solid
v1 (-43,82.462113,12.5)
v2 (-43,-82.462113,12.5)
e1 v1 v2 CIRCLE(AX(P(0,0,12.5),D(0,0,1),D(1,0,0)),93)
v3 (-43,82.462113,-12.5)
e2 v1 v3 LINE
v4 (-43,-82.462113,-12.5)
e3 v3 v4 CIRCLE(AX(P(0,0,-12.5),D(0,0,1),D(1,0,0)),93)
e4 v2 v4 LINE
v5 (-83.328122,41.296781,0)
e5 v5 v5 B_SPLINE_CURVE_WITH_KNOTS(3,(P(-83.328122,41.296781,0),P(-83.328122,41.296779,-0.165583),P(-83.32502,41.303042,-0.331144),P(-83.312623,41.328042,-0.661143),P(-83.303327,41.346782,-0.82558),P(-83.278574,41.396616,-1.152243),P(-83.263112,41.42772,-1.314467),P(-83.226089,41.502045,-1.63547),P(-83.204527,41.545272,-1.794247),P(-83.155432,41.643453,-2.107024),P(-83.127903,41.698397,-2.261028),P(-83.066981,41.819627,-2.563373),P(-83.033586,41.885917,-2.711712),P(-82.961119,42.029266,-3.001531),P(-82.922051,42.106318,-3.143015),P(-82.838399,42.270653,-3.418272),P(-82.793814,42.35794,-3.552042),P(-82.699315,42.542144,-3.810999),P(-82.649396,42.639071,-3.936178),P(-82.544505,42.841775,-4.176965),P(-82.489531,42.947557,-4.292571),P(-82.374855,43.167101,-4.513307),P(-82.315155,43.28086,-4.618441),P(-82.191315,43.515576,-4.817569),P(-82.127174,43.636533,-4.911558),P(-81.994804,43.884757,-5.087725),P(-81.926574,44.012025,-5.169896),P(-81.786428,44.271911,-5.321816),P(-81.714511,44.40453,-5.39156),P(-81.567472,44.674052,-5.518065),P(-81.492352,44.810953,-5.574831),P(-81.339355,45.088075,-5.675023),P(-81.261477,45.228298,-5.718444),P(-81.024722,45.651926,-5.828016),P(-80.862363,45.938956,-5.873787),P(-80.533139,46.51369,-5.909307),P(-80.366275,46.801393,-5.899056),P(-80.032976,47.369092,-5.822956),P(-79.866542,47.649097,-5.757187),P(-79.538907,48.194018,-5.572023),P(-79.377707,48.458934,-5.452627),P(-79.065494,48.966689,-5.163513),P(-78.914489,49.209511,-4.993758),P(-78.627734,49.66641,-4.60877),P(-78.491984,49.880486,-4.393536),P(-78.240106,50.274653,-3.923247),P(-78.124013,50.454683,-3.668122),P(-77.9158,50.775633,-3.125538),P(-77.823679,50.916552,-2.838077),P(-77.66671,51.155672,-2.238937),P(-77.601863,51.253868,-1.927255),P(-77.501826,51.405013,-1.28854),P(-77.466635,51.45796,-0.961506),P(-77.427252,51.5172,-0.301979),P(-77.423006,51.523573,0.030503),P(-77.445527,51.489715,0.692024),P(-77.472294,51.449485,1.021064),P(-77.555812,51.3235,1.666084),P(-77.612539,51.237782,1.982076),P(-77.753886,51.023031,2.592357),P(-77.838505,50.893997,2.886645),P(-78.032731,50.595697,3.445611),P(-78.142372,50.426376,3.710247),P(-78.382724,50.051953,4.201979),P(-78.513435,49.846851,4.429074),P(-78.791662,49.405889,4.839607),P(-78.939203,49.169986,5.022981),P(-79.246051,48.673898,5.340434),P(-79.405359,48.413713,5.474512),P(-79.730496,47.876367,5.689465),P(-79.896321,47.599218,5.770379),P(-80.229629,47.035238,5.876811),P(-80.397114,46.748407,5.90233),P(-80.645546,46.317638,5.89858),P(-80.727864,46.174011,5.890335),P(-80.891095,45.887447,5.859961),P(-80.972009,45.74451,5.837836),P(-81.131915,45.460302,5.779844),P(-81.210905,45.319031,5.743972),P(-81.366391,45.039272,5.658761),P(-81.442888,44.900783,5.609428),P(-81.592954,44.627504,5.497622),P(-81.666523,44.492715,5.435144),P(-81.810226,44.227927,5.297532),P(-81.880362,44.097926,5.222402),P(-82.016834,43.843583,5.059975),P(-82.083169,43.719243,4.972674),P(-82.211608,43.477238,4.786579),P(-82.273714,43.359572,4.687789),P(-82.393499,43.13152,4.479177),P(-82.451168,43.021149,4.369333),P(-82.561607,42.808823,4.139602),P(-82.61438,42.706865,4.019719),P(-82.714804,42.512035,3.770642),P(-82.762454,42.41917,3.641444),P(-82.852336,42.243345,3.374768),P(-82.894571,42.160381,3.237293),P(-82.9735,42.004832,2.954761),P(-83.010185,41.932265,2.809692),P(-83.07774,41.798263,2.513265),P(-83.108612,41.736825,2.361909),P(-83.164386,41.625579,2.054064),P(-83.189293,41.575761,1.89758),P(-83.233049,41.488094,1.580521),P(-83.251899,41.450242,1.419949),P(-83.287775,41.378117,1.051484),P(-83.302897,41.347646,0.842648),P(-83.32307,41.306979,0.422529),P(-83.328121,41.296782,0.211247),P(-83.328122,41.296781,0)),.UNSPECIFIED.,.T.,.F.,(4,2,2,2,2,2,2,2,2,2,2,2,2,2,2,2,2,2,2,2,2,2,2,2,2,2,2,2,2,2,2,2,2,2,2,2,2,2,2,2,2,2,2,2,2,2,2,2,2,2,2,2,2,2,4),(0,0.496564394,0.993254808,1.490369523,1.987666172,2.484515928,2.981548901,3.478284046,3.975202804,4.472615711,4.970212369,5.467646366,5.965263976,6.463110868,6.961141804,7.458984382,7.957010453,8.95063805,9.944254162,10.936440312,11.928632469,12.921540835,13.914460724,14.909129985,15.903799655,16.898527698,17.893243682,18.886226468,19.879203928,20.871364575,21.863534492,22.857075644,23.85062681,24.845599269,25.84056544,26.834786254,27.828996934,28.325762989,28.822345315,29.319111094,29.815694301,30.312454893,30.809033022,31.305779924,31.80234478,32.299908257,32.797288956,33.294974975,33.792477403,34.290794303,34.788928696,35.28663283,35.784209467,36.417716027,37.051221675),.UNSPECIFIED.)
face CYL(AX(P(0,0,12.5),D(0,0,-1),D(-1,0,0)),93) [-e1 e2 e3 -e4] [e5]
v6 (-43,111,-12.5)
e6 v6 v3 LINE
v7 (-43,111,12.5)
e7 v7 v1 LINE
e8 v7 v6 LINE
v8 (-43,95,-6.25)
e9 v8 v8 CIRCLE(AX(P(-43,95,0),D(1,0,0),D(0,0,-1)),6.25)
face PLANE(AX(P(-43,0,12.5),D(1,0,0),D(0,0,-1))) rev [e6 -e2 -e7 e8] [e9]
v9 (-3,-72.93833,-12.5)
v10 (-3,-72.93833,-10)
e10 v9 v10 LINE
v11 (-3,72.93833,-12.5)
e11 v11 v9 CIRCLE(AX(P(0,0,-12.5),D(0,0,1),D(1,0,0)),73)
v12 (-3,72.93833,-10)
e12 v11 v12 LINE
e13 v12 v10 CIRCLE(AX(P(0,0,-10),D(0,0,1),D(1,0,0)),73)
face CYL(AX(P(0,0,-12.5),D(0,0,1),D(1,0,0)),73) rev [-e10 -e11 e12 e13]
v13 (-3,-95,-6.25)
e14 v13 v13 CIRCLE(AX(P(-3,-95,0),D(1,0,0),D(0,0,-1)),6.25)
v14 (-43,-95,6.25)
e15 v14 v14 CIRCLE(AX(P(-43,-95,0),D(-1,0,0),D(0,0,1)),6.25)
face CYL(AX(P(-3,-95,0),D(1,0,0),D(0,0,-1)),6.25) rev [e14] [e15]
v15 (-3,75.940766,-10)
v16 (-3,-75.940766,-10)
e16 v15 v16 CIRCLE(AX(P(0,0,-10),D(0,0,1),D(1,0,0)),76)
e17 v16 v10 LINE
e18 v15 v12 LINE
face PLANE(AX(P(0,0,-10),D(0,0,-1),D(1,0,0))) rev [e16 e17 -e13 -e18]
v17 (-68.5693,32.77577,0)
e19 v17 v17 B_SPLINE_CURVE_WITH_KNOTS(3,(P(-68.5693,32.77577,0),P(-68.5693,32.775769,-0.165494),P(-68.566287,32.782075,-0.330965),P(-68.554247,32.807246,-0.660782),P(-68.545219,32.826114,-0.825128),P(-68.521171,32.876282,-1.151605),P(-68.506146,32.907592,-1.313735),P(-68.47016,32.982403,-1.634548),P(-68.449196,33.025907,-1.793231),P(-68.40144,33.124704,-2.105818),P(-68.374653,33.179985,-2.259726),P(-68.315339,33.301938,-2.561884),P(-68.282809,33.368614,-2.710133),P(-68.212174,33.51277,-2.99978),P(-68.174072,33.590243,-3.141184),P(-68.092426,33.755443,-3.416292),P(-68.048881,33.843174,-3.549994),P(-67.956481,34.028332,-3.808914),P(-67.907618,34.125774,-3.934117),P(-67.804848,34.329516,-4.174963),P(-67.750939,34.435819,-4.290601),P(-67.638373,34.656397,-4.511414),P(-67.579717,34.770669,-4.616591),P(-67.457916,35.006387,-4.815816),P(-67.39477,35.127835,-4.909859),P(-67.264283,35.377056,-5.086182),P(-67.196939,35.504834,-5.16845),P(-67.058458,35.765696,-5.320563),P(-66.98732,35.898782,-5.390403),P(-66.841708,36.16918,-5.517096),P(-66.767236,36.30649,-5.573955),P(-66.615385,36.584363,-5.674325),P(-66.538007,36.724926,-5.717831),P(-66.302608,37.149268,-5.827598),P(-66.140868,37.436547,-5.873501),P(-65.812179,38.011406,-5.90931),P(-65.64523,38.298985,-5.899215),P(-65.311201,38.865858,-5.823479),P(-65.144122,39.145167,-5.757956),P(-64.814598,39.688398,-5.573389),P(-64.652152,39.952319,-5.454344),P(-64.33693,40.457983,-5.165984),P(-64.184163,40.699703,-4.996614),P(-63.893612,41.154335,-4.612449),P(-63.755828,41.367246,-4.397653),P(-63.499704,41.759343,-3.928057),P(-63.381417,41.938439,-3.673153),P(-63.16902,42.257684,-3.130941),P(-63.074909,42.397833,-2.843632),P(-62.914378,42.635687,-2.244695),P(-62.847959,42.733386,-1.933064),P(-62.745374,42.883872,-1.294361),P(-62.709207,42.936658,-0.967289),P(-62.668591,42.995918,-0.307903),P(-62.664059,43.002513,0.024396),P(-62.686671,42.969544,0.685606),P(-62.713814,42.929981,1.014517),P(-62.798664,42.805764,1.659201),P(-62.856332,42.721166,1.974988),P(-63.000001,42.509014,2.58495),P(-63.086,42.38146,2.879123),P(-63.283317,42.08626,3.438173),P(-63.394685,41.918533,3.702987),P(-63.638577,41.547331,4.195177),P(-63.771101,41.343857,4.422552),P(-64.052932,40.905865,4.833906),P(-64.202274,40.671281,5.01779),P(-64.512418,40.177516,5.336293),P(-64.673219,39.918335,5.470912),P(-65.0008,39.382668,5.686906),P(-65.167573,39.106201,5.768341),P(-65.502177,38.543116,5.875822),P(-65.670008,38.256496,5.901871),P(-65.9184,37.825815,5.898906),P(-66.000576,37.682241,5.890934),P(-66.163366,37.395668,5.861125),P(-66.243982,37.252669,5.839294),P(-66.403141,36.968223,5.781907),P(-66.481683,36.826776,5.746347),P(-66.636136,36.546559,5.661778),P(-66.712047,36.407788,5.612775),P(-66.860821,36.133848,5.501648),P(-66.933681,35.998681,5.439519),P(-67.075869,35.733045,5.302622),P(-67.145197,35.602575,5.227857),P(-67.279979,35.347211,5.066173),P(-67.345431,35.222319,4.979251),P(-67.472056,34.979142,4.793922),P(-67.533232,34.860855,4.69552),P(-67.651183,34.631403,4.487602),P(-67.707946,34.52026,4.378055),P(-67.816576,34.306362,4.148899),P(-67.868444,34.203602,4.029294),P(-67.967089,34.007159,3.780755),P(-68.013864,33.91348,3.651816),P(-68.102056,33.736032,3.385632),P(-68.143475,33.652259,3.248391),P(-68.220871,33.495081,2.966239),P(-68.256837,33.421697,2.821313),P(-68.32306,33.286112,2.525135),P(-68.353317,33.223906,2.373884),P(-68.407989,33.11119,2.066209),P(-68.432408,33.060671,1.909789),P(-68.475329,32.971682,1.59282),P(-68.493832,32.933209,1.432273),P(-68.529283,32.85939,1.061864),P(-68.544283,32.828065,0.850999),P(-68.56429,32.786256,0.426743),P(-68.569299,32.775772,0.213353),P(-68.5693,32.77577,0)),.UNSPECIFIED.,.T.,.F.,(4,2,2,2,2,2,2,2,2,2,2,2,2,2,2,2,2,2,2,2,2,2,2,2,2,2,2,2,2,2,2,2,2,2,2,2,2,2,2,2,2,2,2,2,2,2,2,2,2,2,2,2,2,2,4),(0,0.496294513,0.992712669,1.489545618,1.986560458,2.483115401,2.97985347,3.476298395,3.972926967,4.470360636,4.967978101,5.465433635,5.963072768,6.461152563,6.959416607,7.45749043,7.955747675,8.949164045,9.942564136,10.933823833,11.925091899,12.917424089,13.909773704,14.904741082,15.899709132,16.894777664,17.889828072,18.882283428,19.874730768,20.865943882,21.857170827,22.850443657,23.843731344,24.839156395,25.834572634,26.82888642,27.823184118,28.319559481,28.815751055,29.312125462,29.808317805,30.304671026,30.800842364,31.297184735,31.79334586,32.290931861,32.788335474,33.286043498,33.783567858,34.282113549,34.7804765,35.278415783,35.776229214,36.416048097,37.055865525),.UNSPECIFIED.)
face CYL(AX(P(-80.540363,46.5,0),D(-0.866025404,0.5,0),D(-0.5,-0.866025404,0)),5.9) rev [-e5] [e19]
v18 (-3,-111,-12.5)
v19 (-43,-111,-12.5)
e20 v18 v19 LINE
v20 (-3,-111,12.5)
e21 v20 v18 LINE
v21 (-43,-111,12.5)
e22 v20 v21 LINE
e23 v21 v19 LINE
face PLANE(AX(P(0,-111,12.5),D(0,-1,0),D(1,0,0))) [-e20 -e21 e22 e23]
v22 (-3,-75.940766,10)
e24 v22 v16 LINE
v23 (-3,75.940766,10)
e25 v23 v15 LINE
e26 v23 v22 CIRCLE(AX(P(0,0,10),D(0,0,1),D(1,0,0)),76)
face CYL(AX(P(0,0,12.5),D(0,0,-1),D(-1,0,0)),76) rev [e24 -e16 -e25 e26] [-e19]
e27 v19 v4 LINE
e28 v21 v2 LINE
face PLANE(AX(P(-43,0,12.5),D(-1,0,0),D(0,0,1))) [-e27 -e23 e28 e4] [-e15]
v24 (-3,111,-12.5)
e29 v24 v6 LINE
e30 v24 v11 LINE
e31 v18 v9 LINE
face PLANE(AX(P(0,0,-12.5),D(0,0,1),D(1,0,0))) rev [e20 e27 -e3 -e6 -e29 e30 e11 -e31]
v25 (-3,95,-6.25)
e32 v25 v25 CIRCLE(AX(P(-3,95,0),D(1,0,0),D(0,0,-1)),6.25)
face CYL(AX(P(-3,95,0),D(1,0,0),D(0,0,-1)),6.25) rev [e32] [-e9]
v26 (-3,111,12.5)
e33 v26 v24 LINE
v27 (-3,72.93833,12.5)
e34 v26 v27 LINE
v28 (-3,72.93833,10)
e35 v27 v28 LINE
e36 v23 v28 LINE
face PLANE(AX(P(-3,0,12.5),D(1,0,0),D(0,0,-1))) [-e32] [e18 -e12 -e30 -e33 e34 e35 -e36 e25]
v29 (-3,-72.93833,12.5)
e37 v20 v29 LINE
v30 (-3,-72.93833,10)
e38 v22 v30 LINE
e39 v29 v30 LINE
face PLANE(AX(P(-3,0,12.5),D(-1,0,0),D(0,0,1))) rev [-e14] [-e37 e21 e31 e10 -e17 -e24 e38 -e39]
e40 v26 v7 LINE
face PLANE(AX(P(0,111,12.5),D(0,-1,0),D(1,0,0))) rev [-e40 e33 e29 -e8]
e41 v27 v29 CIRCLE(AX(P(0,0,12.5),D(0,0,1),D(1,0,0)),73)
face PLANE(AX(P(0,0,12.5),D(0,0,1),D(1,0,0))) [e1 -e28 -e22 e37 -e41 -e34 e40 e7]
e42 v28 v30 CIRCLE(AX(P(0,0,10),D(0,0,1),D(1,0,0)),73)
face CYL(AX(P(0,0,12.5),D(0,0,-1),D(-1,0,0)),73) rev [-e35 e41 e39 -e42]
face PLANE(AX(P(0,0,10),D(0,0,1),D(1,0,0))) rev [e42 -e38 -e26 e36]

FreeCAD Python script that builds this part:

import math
import FreeCAD as App
import Part
import Sketcher
Q = App.Units.Quantity

doc = App.newDocument("Part")
body = doc.addObject("PartDesign::Body", "Body")

# Sketch on XY plane
sketch1 = body.newObject("Sketcher::SketchObject", "Sketch")
sketch1.AttachmentSupport = (doc.getObject("XY_Plane"), [""])
sketch1.MapMode = "FlatFace"
sketch1.addGeometry([
    Part.LineSegment(App.Vector(-3, 76, 0), App.Vector(-3, 111, 0)),  # 0
    Part.LineSegment(App.Vector(-3, 111, 0), App.Vector(-43, 111, 0)),  # 1
    Part.LineSegment(App.Vector(-43, 111, 0), App.Vector(-43, 82, 0)),  # 2
    Part.ArcOfCircle(Part.Circle(App.Vector(0, 0, 0), App.Vector(0, 0, 1), 93), math.radians(118), math.radians(242)),  # 3
    Part.LineSegment(App.Vector(-43, -82, 0), App.Vector(-43, -111, 0)),  # 4
    Part.LineSegment(App.Vector(-43, -111, 0), App.Vector(-3, -111, 0)),  # 5
    Part.LineSegment(App.Vector(-3, -111, 0), App.Vector(-3, -76, 0)),  # 6
    Part.ArcOfCircle(Part.Circle(App.Vector(0, 0, 0), App.Vector(0, 0, 1), 76), math.radians(92), math.radians(268)),  # 7
], False)
sketch1.addConstraint([
    Sketcher.Constraint("Coincident", 0, 2, 1, 1),
    Sketcher.Constraint("Coincident", 1, 2, 2, 1),
    Sketcher.Constraint("Coincident", 2, 2, 3, 1),
    Sketcher.Constraint("Coincident", 3, 2, 4, 1),
    Sketcher.Constraint("Coincident", 4, 2, 5, 1),
    Sketcher.Constraint("Coincident", 5, 2, 6, 1),
    Sketcher.Constraint("Coincident", 6, 2, 7, 2),
    Sketcher.Constraint("Coincident", 7, 1, 0, 1),
    Sketcher.Constraint("Vertical", 0),
    Sketcher.Constraint("Horizontal", 1),
    Sketcher.Constraint("Vertical", 2),
    Sketcher.Constraint("Vertical", 4),
    Sketcher.Constraint("Horizontal", 5),
    Sketcher.Constraint("Vertical", 6),
    Sketcher.Constraint("Coincident", 3, 3, -1, 1),
    Sketcher.Constraint("Coincident", 7, 3, -1, 1),
    Sketcher.Constraint("Symmetric", 1, 2, 4, 2, -1),
    Sketcher.Constraint("Vertical", 0, 2, 5, 2),
    Sketcher.Constraint("Radius", 3, Q("93 mm")),
    Sketcher.Constraint("Radius", 7, Q("76 mm")),
    Sketcher.Constraint("DistanceX", 1, 2, 1, 1, Q("40 mm")),
    Sketcher.Constraint("DistanceX", 0, 2, -1, 1, Q("3 mm")),
    Sketcher.Constraint("DistanceY", -1, 1, 0, 2, Q("111 mm")),
])
pad1 = body.newObject("PartDesign::Pad", "Pad")
pad1.Profile = sketch1
pad1.Length = 25
pad1.Midplane = True

# Sketch on XY plane
sketch2 = body.newObject("Sketcher::SketchObject", "Sketch001")
sketch2.AttachmentSupport = (doc.getObject("XY_Plane"), [""])
sketch2.MapMode = "FlatFace"
sketch2.AttachmentOffset = App.Placement(App.Vector(0, 0, 12.5), App.Rotation())
sketch2.addGeometry([
    Part.LineSegment(App.Vector(-3, 72.9, 0), App.Vector(-3, 75.9, 0)),
    Part.ArcOfCircle(Part.Circle(App.Vector(0, 0, 0), App.Vector(0, 0, 1), 76), math.radians(92), math.radians(268)),
    Part.LineSegment(App.Vector(-3, -75.9, 0), App.Vector(-3, -72.9, 0)),
    Part.ArcOfCircle(Part.Circle(App.Vector(0, 0, 0), App.Vector(0, 0, 1), 73), math.radians(92), math.radians(268)),
], False)
sketch2.addConstraint([
    Sketcher.Constraint("Coincident", 0, 2, 1, 1),
    Sketcher.Constraint("Coincident", 1, 2, 2, 1),
    Sketcher.Constraint("Coincident", 2, 2, 3, 2),
    Sketcher.Constraint("Coincident", 3, 1, 0, 1),
    Sketcher.Constraint("Vertical", 0),
    Sketcher.Constraint("Vertical", 2),
    Sketcher.Constraint("Coincident", 1, 3, -1, 1),
    Sketcher.Constraint("Coincident", 3, 3, -1, 1),
    Sketcher.Constraint("Vertical", 0, 2, 1, 2),
    Sketcher.Constraint("Radius", 1, Q("76 mm")),
    Sketcher.Constraint("Radius", 3, Q("73 mm")),
    Sketcher.Constraint("DistanceX", 0, 2, -1, 1, Q("3 mm")),
])
pad2 = body.newObject("PartDesign::Pad", "Pad001")
pad2.Profile = sketch2
pad2.Length = 2.5
pad2.Reversed = True

# Sketch on YZ plane
sketch3 = body.newObject("Sketcher::SketchObject", "Sketch002")
sketch3.AttachmentSupport = (doc.getObject("YZ_Plane"), [""])
sketch3.MapMode = "FlatFace"
sketch3.AttachmentOffset = App.Placement(App.Vector(0, 0, -3), App.Rotation())
sketch3.addGeometry([
    Part.Circle(App.Vector(95, 0, 0), App.Vector(0, 0, 1), 6),
    Part.Circle(App.Vector(-95, 0, 0), App.Vector(0, 0, 1), 6),
], False)
sketch3.addConstraint([
    Sketcher.Constraint("Equal", 0, 1),
    Sketcher.Constraint("Symmetric", 0, 3, 1, 3, -1, 1),
    Sketcher.Constraint("PointOnObject", 0, 3, -1),
    Sketcher.Constraint("Diameter", 0, Q("12.5 mm")),
    Sketcher.Constraint("DistanceX", -1, 1, 0, 3, Q("95 mm")),
])
doc.recompute()
hole = body.newObject("PartDesign::Hole", "Hole")
hole.Profile = sketch3
hole.ThreadType = "None"
hole.Diameter = 12.5
hole.DepthType = "ThroughAll"
doc.recompute()

mirrored = body.newObject("PartDesign::Mirrored", "Mirrored")
mirrored.Originals = [pad2]
mirrored.MirrorPlane = (doc.getObject("XY_Plane"), [""])
body.Tip = mirrored

# Sketch on an angled plane
sketch4 = body.newObject("Sketcher::SketchObject", "Sketch003")
sketch4.Placement = App.Placement(App.Vector(-80.540363, 46.5, 0), App.Rotation(App.Vector(0, 0, 1), App.Vector(0.5, 0.866025404, 0), App.Vector(-0.866025404, 0.5, 0), "ZXY"))
sketch4.addGeometry(Part.Circle(App.Vector(0, 0, 0), App.Vector(0, 0, 1), 6), False)
sketch4.addConstraint([
    Sketcher.Constraint("Coincident", 0, 3, -1, 1),
    Sketcher.Constraint("Diameter", 0, Q("11.8 mm")),
])
doc.recompute()
hole2 = body.newObject("PartDesign::Hole", "Hole001")
hole2.Profile = sketch4
hole2.ThreadType = "None"
hole2.Diameter = 11.8
hole2.DepthType = "ThroughAll"

doc.recompute()
